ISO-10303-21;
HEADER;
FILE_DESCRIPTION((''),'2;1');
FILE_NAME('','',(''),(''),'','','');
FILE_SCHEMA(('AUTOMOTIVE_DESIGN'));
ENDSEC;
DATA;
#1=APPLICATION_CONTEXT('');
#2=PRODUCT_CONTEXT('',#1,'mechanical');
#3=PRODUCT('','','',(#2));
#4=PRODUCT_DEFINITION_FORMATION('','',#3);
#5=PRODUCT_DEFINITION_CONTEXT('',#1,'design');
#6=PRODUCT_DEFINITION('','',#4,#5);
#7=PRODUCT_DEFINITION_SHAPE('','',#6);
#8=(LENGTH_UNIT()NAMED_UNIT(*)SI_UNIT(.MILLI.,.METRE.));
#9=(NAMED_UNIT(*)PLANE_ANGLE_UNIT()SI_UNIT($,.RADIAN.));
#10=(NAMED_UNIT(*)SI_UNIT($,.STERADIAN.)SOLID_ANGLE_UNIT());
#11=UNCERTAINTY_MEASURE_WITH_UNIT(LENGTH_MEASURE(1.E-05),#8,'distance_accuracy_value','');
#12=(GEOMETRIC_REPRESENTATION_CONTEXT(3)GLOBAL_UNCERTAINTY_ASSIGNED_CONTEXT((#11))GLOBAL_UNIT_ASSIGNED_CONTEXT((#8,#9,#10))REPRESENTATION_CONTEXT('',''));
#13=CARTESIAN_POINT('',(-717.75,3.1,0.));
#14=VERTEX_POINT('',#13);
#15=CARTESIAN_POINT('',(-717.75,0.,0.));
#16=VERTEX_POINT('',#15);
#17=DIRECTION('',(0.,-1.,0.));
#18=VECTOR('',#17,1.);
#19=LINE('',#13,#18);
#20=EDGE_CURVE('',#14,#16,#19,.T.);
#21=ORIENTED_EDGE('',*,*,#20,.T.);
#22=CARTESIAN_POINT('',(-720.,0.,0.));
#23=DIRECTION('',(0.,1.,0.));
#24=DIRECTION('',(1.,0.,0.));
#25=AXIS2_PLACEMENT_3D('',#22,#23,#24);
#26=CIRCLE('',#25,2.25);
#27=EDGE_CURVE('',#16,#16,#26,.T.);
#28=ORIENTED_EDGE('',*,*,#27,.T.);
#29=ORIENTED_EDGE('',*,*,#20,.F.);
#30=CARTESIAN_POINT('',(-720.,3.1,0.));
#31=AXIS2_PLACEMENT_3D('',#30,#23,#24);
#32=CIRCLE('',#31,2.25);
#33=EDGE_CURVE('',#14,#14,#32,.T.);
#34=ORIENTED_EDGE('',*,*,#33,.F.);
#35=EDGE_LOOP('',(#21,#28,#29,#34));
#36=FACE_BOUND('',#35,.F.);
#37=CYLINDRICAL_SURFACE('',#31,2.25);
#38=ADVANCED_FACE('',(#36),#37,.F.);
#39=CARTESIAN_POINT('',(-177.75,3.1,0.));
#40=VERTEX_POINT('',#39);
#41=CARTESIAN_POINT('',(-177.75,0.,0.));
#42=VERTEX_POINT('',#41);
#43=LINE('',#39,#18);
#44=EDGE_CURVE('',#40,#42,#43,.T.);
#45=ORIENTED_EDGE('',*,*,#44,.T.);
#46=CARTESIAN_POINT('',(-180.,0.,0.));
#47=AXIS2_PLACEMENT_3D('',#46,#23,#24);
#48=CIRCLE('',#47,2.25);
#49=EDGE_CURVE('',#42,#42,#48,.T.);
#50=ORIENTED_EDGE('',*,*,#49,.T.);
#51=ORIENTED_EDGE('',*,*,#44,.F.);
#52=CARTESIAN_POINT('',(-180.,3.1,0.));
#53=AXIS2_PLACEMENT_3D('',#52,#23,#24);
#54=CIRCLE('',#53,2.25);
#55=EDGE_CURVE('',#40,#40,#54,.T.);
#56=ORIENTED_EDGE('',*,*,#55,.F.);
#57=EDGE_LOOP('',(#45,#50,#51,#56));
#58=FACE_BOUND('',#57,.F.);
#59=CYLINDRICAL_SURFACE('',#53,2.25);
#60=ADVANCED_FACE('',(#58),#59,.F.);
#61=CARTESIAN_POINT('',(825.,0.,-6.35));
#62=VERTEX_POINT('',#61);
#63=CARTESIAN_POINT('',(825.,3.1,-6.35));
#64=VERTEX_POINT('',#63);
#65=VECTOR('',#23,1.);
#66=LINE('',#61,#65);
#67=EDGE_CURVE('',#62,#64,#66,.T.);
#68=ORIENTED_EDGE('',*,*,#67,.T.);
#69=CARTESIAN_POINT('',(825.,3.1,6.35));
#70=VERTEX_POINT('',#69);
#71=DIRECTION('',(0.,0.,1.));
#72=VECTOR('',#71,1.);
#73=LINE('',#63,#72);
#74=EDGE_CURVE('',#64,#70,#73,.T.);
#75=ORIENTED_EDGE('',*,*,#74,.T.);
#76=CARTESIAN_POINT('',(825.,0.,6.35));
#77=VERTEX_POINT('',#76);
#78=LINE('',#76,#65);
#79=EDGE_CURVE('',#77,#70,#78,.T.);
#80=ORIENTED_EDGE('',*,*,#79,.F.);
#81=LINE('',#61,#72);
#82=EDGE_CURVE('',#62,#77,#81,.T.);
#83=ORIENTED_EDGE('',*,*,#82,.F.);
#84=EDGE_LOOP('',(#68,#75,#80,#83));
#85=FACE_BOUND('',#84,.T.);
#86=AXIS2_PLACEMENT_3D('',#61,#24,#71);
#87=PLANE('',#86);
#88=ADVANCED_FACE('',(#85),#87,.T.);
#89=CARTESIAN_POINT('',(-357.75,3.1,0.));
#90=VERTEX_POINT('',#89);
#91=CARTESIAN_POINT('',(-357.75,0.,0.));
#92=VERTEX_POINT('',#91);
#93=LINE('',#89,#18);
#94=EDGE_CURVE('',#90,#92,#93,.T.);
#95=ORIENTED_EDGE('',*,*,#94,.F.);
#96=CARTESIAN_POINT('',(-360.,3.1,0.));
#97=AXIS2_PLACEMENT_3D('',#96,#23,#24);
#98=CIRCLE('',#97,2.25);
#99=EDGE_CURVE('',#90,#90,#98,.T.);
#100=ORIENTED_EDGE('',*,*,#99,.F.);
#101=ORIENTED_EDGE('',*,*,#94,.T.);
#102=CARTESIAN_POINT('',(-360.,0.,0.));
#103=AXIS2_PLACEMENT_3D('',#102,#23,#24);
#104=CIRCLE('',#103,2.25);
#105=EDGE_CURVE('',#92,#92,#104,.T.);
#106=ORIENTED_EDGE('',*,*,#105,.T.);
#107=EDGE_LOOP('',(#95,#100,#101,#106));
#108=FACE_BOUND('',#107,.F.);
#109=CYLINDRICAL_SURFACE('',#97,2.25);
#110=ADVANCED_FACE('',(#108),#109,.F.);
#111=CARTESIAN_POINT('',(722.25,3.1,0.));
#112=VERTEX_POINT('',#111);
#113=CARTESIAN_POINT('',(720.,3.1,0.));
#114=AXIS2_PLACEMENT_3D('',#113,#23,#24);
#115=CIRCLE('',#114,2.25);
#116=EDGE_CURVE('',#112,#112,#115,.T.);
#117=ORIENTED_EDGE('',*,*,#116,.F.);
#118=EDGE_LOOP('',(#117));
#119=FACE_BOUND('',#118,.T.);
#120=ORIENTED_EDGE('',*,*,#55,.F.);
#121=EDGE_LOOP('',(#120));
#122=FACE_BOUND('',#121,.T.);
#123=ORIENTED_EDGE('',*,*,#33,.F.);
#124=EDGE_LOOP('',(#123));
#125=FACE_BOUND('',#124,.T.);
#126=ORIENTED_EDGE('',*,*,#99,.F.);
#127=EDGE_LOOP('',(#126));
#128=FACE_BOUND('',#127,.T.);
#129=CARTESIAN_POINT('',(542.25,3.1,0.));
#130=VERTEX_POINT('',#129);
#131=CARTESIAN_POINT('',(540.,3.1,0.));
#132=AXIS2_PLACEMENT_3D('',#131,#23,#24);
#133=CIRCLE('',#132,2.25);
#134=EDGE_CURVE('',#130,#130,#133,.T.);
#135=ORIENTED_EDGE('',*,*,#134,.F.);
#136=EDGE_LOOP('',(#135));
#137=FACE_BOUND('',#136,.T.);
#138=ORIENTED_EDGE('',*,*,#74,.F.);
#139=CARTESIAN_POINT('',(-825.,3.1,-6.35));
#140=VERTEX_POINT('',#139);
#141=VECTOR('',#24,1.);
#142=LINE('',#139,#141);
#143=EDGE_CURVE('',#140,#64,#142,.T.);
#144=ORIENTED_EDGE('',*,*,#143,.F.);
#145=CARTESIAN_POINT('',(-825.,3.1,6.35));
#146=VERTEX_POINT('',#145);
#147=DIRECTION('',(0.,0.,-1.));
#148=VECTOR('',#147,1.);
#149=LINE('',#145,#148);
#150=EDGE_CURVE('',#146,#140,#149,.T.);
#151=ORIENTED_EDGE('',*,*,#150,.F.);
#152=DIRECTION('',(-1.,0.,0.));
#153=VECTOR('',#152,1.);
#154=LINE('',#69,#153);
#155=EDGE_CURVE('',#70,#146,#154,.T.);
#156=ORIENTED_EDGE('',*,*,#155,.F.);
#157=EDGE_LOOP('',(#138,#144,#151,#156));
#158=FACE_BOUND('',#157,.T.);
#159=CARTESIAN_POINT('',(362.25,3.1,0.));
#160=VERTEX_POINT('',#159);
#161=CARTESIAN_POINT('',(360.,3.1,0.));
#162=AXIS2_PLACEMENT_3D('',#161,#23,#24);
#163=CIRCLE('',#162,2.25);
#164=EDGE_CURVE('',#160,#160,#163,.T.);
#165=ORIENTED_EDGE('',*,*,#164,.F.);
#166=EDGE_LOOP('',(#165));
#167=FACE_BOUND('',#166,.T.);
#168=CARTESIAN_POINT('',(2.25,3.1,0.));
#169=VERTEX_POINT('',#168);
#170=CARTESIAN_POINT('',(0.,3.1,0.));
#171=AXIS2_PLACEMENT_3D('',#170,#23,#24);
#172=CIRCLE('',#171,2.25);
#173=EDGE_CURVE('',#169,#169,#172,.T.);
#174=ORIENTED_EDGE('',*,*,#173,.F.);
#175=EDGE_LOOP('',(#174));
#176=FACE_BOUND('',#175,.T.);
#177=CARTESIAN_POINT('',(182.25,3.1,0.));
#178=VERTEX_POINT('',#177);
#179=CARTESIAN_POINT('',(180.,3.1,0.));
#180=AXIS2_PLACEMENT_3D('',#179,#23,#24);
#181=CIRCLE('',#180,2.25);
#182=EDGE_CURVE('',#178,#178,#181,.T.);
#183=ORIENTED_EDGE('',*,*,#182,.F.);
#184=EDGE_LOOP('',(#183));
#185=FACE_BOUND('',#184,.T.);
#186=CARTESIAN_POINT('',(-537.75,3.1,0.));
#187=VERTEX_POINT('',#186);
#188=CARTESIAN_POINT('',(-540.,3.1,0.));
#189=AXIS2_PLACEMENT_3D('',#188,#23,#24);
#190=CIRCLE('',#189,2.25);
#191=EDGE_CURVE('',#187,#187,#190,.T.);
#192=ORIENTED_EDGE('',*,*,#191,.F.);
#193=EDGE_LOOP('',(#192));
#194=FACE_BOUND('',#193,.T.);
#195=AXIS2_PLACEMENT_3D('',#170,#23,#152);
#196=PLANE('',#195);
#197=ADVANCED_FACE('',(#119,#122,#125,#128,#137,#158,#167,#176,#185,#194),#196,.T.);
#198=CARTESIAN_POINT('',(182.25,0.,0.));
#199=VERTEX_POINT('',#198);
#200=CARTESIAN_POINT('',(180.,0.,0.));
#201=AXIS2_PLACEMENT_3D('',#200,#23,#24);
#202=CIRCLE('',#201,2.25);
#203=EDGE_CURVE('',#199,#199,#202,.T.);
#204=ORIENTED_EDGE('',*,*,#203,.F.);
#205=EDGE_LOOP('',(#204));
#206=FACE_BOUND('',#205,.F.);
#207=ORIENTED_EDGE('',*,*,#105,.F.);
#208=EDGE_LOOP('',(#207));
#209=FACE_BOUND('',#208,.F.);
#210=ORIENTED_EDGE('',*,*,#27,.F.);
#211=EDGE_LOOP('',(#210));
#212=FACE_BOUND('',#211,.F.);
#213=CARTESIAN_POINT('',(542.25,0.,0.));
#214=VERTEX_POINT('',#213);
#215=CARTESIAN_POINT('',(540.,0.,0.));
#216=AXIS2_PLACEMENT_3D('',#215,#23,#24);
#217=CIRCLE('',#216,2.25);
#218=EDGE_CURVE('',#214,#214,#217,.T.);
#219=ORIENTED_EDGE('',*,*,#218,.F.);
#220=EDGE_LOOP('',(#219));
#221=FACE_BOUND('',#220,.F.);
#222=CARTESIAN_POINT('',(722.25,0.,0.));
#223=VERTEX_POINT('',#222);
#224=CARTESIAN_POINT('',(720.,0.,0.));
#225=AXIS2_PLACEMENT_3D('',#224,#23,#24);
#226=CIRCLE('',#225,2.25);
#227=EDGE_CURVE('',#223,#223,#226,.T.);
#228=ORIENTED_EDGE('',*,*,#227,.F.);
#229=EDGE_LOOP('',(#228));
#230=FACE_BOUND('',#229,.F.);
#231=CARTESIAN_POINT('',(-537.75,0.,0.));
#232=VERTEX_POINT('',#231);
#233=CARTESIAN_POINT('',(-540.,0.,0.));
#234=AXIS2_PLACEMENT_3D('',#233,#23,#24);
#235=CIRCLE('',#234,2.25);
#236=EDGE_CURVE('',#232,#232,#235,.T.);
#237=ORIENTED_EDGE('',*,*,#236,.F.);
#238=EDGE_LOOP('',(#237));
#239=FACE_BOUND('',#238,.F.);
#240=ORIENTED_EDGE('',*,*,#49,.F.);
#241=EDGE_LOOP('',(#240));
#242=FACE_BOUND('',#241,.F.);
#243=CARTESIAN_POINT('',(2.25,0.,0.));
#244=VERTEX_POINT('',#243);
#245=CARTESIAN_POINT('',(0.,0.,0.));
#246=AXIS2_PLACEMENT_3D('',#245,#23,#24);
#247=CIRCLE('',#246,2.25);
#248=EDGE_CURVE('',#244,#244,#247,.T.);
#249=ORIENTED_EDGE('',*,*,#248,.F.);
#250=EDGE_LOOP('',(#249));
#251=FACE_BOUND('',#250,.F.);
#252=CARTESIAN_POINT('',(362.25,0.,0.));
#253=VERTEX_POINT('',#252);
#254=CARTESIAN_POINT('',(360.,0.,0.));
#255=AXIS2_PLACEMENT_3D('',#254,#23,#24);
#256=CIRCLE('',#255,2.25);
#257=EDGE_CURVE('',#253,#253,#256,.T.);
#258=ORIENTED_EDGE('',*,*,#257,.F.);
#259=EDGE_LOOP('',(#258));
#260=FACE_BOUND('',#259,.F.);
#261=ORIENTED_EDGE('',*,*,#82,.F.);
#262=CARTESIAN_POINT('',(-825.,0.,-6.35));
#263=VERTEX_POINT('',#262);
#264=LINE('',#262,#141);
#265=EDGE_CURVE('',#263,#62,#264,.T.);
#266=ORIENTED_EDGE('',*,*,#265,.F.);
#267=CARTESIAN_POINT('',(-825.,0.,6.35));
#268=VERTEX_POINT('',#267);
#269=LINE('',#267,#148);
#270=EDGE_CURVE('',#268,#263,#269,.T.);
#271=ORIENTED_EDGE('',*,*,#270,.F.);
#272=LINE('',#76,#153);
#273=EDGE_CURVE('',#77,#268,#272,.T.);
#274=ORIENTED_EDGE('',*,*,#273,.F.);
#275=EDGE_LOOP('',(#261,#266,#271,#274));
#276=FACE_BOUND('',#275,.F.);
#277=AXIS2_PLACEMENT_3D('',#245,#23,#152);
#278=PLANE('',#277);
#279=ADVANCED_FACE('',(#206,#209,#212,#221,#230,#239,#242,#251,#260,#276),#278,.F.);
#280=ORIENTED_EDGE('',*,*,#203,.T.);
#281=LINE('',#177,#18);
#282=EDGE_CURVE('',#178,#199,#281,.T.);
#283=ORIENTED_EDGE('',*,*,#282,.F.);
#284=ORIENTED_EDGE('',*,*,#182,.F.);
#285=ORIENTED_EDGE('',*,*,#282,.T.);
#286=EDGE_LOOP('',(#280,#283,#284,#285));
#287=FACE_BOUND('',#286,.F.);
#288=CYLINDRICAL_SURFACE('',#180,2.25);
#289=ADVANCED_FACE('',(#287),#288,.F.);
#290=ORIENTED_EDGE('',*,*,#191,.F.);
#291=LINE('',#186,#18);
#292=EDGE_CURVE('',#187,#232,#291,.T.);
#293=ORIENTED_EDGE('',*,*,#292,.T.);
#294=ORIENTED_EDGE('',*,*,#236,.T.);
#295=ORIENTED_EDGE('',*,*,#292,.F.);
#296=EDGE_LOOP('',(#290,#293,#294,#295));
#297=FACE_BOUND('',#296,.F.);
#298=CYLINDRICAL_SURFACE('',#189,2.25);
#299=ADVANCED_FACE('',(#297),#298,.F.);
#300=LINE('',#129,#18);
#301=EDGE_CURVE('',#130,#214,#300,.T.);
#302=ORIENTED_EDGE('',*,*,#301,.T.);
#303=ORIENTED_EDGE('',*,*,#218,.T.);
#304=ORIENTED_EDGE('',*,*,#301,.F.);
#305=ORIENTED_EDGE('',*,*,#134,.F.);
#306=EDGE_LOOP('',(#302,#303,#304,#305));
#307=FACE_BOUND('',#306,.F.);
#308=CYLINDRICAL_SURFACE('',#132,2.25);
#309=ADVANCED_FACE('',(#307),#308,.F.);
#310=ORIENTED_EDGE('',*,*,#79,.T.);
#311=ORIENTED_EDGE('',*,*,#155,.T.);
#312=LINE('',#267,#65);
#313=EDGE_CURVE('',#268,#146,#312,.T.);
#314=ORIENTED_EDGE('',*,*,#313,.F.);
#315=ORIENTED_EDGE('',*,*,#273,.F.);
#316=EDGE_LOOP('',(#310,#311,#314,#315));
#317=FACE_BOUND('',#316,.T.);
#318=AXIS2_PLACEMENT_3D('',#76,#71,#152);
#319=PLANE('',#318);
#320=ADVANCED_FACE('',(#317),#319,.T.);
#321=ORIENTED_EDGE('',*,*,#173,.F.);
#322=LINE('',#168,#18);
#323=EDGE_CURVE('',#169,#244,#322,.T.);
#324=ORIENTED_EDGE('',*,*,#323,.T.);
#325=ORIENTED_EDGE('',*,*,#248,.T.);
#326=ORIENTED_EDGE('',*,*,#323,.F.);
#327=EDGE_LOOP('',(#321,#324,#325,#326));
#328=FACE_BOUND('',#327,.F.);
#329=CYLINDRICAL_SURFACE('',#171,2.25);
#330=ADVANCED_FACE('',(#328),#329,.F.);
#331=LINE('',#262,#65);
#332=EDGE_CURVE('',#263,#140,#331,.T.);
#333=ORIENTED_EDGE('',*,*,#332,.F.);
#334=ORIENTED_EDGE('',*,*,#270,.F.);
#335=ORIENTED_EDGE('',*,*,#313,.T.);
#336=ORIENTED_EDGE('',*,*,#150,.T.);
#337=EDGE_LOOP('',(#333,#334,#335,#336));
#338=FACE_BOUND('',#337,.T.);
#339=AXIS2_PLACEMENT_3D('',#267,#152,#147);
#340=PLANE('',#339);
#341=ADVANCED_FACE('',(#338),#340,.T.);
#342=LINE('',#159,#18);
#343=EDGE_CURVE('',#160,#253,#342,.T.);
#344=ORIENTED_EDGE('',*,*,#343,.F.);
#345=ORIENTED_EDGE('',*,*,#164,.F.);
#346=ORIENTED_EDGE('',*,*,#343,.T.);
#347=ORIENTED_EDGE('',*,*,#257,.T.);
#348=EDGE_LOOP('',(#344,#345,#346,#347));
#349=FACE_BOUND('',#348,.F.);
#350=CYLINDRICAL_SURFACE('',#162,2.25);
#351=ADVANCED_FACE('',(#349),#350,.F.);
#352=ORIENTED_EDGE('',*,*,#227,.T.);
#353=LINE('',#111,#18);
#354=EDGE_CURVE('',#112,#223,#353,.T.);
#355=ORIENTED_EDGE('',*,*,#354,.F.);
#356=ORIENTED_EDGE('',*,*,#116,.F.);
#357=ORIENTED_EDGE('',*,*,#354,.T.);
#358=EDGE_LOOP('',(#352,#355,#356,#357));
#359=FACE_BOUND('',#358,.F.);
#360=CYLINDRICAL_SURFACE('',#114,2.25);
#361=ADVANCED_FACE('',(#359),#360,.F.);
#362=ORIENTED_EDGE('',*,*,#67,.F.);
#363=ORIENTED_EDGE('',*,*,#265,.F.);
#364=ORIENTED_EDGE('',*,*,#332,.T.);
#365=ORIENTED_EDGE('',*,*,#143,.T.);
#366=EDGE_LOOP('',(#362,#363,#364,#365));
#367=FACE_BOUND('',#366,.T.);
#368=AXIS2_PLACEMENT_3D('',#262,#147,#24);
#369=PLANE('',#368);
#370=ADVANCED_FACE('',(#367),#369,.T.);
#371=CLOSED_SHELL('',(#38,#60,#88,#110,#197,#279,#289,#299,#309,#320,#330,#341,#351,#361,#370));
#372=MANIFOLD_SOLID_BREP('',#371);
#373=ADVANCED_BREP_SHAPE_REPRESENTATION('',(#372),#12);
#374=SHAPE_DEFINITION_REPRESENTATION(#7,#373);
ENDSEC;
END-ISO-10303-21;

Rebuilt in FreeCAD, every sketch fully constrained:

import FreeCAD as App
import Part
import Sketcher

V = App.Vector


def add_polygon(sketch, points):
    """Adds a closed chain of lines whose ends are joined by coincident constraints."""
    first, n = sketch.GeometryCount, len(points)
    for a, b in zip(points, points[1:] + points[:1]):
        sketch.addGeometry(Part.LineSegment(App.Vector(*a, 0), App.Vector(*b, 0)), False)
    for i in range(n):
        sketch.addConstraint(Sketcher.Constraint("Coincident", first + i, 2, first + (i + 1) % n, 1))

doc = App.newDocument("Part")
params = doc.addObject("Spreadsheet::Sheet", "Params")
for row, (alias, value) in enumerate([
    ("sketch1_width", "1650 mm"),
    ("sketch1_height", "12.7 mm"),
    ("pad1_length", "3.1 mm"),
    ("sketch2_diameter", "4.5 mm"),
    ("pocket1_length", "3.1 mm"),
    ("sketch3_diameter", "4.5 mm"),
    ("pocket2_length", "180 mm"),
], start=1):
    params.set(f"A{row}", alias)
    params.set(f"B{row}", "=" + value)
    params.setAlias(f"B{row}", alias)

body = doc.addObject("PartDesign::Body", "Body")

sketch1 = body.newObject("Sketcher::SketchObject", "Sketch")
sketch1.AttachmentSupport = (doc.getObject("XZ_Plane"), [""])
sketch1.MapMode = "FlatFace"
add_polygon(sketch1, [(-825, 6), (825, 6), (825, -6), (-825, -6)])
sketch1.addConstraint([
    Sketcher.Constraint("Horizontal", 0),
    Sketcher.Constraint("Vertical", 1),
    Sketcher.Constraint("Horizontal", 2),
    Sketcher.Constraint("Vertical", 3),
    Sketcher.Constraint("Symmetric", 0, 2, 2, 2, -1, 1),
    Sketcher.Constraint("DistanceX", 0, 1, 0, 2, 1650.0),
    Sketcher.Constraint("DistanceY", 1, 2, 1, 1, 12.7),
])
sketch1.setExpression("Constraints[9]", "Params.sketch1_width")
sketch1.setExpression("Constraints[10]", "Params.sketch1_height")
pad1 = body.newObject("PartDesign::Pad", "Pad")
pad1.Profile = sketch1
pad1.setExpression("Length", "Params.pad1_length")
pad1.Reversed = True

sketch2 = body.newObject("Sketcher::SketchObject", "Sketch001")
sketch2.AttachmentSupport = (doc.getObject("XZ_Plane"), [""])
sketch2.MapMode = "FlatFace"
sketch2.AttachmentOffset = App.Placement(V(0, 0, -3.1), App.Rotation())
sketch2.addGeometry(Part.Circle(V(0, 0, 0), V(0, 0, 1), 2.2), False)
sketch2.addConstraint([
    Sketcher.Constraint("Coincident", 0, 3, -1, 1),
    Sketcher.Constraint("Diameter", 0, 4.5),
])
sketch2.setExpression("Constraints[1]", "Params.sketch2_diameter")
pocket1 = body.newObject("PartDesign::Pocket", "Pocket")
pocket1.Profile = sketch2
pocket1.setExpression("Length", "Params.pocket1_length")
pocket1.Reversed = True

sketch3 = body.newObject("Sketcher::SketchObject", "Sketch002")
sketch3.AttachmentSupport = (doc.getObject("XZ_Plane"), [""])
sketch3.MapMode = "FlatFace"
sketch3.AttachmentOffset = App.Placement(V(0, 0, -3.1), App.Rotation())
sketch3.addGeometry([
    Part.Circle(V(0, 0, 0), V(0, 0, 1), 2.2),
    Part.Circle(V(180, 0, 0), V(0, 0, 1), 2.2),
    Part.Circle(V(360, 0, 0), V(0, 0, 1), 2.2),
    Part.Circle(V(540, 0, 0), V(0, 0, 1), 2.2),
    Part.Circle(V(720, 0, 0), V(0, 0, 1), 2.2),
    Part.Circle(V(-180, 0, 0), V(0, 0, 1), 2.2),
    Part.Circle(V(-360, 0, 0), V(0, 0, 1), 2.2),
    Part.Circle(V(-540, 0, 0), V(0, 0, 1), 2.2),
    Part.Circle(V(-720, 0, 0), V(0, 0, 1), 2.2),
], False)
sketch3.addConstraint([
    Sketcher.Constraint("Coincident", 0, 3, -1, 1),
    Sketcher.Constraint("Equal", 0, 1),
    Sketcher.Constraint("Equal", 1, 2),
    Sketcher.Constraint("Equal", 2, 3),
    Sketcher.Constraint("Equal", 3, 4),
    Sketcher.Constraint("Equal", 4, 5),
    Sketcher.Constraint("Equal", 5, 6),
    Sketcher.Constraint("Equal", 6, 7),
    Sketcher.Constraint("Equal", 7, 8),
    Sketcher.Constraint("Symmetric", 1, 3, 5, 3, -1, 1),
    Sketcher.Constraint("Symmetric", 2, 3, 6, 3, -1, 1),
    Sketcher.Constraint("Symmetric", 3, 3, 7, 3, -1, 1),
    Sketcher.Constraint("Symmetric", 4, 3, 8, 3, -1, 1),
    Sketcher.Constraint("PointOnObject", 1, 3, -1),
    Sketcher.Constraint("PointOnObject", 2, 3, -1),
    Sketcher.Constraint("PointOnObject", 3, 3, -1),
    Sketcher.Constraint("PointOnObject", 4, 3, -1),
    Sketcher.Constraint("DistanceX", -1, 1, 1, 3, 180.0),
    Sketcher.Constraint("DistanceX", 1, 3, 2, 3, 180.0),
    Sketcher.Constraint("DistanceX", 2, 3, 3, 3, 180.0),
    Sketcher.Constraint("DistanceX", 3, 3, 4, 3, 180.0),
    Sketcher.Constraint("Diameter", 0, 4.5),
])
sketch3.setExpression("Constraints[21]", "Params.sketch3_diameter")
pocket2 = body.newObject("PartDesign::Pocket", "Pocket001")
pocket2.Profile = sketch3
pocket2.setExpression("Length", "Params.pocket2_length")
pocket2.Reversed = True

doc.recompute()
